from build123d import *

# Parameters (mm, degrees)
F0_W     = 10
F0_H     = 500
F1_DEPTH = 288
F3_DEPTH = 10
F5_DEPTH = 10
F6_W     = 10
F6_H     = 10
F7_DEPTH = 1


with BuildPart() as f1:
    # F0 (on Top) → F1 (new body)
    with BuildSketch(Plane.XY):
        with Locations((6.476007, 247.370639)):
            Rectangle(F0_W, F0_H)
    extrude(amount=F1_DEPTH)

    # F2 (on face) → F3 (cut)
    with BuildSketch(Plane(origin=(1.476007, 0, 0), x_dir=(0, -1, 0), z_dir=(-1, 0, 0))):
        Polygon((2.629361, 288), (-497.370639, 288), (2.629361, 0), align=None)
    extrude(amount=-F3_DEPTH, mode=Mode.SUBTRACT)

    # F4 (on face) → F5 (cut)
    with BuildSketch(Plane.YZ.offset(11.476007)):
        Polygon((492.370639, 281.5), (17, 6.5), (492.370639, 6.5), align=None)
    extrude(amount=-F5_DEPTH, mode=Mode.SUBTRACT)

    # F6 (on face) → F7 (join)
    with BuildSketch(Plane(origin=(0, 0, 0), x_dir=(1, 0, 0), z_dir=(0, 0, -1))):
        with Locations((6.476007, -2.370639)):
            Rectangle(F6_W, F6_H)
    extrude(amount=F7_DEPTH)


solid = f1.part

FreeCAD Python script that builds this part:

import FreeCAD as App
import Part
import Sketcher
from FreeCAD import Vector
Q = App.Units.Quantity


def add_polygon(sketch, points):
    """Adds a closed chain of lines whose ends are joined by coincident constraints."""
    first, n = sketch.GeometryCount, len(points)
    for a, b in zip(points, points[1:] + points[:1]):
        sketch.addGeometry(Part.LineSegment(App.Vector(*a, 0), App.Vector(*b, 0)), False)
    for i in range(n):
        sketch.addConstraint(Sketcher.Constraint("Coincident", first + i, 2, first + (i + 1) % n, 1))

doc = App.newDocument("Part")
params = doc.addObject("Spreadsheet::Sheet", "Params")
for row, (alias, value) in enumerate([
    ("sketch1_width", "10 mm"),
    ("sketch1_height", "500 mm"),
    ("pad1_length", "288 mm"),
    ("sketch2_width", "500 mm"),
    ("sketch2_height", "288 mm"),
    ("pocket1_length", "10 mm"),
    ("sketch3_height", "275 mm"),
    ("pocket2_length", "10 mm"),
    ("sketch4_width", "10 mm"),
    ("pad2_length", "1 mm"),
], start=1):
    params.set(f"A{row}", alias)
    params.set(f"B{row}", "=" + value)
    params.setAlias(f"B{row}", alias)

body = doc.addObject("PartDesign::Body", "Body")

# Sketch on XY plane
sketch1 = body.newObject("Sketcher::SketchObject", "Sketch")
sketch1.AttachmentSupport = (doc.getObject("XY_Plane"), [""])
sketch1.MapMode = "FlatFace"
add_polygon(sketch1, [(1, 497), (1, -3), (11, -3), (11, 497)])  # lines 0-3
sketch1.addConstraint(Sketcher.Constraint("Vertical", 0))
sketch1.addConstraint(Sketcher.Constraint("Horizontal", 1))
sketch1.addConstraint(Sketcher.Constraint("Vertical", 2))
sketch1.addConstraint(Sketcher.Constraint("Horizontal", 3))
sketch1.addConstraint(Sketcher.Constraint("DistanceX", 1, 1, 1, 2, Q("10 mm")))
sketch1.addConstraint(Sketcher.Constraint("DistanceY", 0, 2, 0, 1, Q("500 mm")))
sketch1.addConstraint(Sketcher.Constraint("DistanceY", 0, 2, -1, 1, Q("2.629361 mm")))
sketch1.addConstraint(Sketcher.Constraint("DistanceX", -1, 1, 0, 2, Q("1.476007 mm")))
sketch1.setExpression("Constraints[8]", "Params.sketch1_width")
sketch1.setExpression("Constraints[9]", "Params.sketch1_height")
pad1 = body.newObject("PartDesign::Pad", "Pad")
pad1.Profile = sketch1
pad1.setExpression("Length", "Params.pad1_length")

# Sketch on YZ plane
sketch2 = body.newObject("Sketcher::SketchObject", "Sketch001")
sketch2.AttachmentSupport = (doc.getObject("YZ_Plane"), [""])
sketch2.MapMode = "FlatFace"
sketch2.AttachmentOffset = App.Placement(Vector(0, 0, 1.476007), App.Rotation())
add_polygon(sketch2, [(-3, 288), (497, 288), (-3, 0)])  # lines 0-2
sketch2.addConstraint(Sketcher.Constraint("Horizontal", 0))
sketch2.addConstraint(Sketcher.Constraint("Vertical", 2))
sketch2.addConstraint(Sketcher.Constraint("PointOnObject", 1, 2, -1))
sketch2.addConstraint(Sketcher.Constraint("DistanceX", 0, 1, 0, 2, Q("500 mm")))
sketch2.addConstraint(Sketcher.Constraint("DistanceY", 2, 1, 2, 2, Q("288 mm")))
sketch2.addConstraint(Sketcher.Constraint("DistanceX", -1, 1, 0, 2, Q("497.370639 mm")))
sketch2.setExpression("Constraints[6]", "Params.sketch2_width")
sketch2.setExpression("Constraints[7]", "Params.sketch2_height")
pocket1 = body.newObject("PartDesign::Pocket", "Pocket")
pocket1.Profile = sketch2
pocket1.setExpression("Length", "Params.pocket1_length")
pocket1.Reversed = True

# Sketch on YZ plane
sketch3 = body.newObject("Sketcher::SketchObject", "Sketch002")
sketch3.AttachmentSupport = (doc.getObject("YZ_Plane"), [""])
sketch3.MapMode = "FlatFace"
sketch3.AttachmentOffset = App.Placement(Vector(0, 0, 11.476007), App.Rotation())
add_polygon(sketch3, [(492, 282), (17, 6), (492, 6)])  # lines 0-2
sketch3.addConstraint(Sketcher.Constraint("Horizontal", 1))
sketch3.addConstraint(Sketcher.Constraint("Vertical", 2))
sketch3.addConstraint(Sketcher.Constraint("DistanceY", 2, 1, 2, 2, Q("275 mm")))
sketch3.addConstraint(Sketcher.Constraint("DistanceX", -1, 1, 0, 2, Q("17 mm")))
sketch3.addConstraint(Sketcher.Constraint("DistanceY", -1, 1, 0, 2, Q("6.5 mm")))
sketch3.addConstraint(Sketcher.Constraint("DistanceX", 1, 1, 1, 2, Q("475.370639 mm")))
sketch3.setExpression("Constraints[5]", "Params.sketch3_height")
pocket2 = body.newObject("PartDesign::Pocket", "Pocket001")
pocket2.Profile = sketch3
pocket2.setExpression("Length", "Params.pocket2_length")

# Sketch on XY plane
sketch4 = body.newObject("Sketcher::SketchObject", "Sketch003")
sketch4.AttachmentSupport = (doc.getObject("XY_Plane"), [""])
sketch4.MapMode = "FlatFace"
add_polygon(sketch4, [(1, -3), (1, 7), (11, 7), (11, -3)])  # lines 0-3
sketch4.addConstraint(Sketcher.Constraint("Vertical", 0))
sketch4.addConstraint(Sketcher.Constraint("Horizontal", 1))
sketch4.addConstraint(Sketcher.Constraint("Vertical", 2))
sketch4.addConstraint(Sketcher.Constraint("Horizontal", 3))
sketch4.addConstraint(Sketcher.Constraint("Equal", 3, 0))
sketch4.addConstraint(Sketcher.Constraint("DistanceX", 1, 1, 1, 2, Q("10 mm")))
sketch4.addConstraint(Sketcher.Constraint("DistanceY", -1, 1, 0, 2, Q("7.370639 mm")))
sketch4.addConstraint(Sketcher.Constraint("DistanceX", -1, 1, 0, 2, Q("1.476007 mm")))
sketch4.setExpression("Constraints[9]", "Params.sketch4_width")
pad2 = body.newObject("PartDesign::Pad", "Pad001")
pad2.Profile = sketch4
pad2.setExpression("Length", "Params.pad2_length")
pad2.Reversed = True

doc.recompute()
